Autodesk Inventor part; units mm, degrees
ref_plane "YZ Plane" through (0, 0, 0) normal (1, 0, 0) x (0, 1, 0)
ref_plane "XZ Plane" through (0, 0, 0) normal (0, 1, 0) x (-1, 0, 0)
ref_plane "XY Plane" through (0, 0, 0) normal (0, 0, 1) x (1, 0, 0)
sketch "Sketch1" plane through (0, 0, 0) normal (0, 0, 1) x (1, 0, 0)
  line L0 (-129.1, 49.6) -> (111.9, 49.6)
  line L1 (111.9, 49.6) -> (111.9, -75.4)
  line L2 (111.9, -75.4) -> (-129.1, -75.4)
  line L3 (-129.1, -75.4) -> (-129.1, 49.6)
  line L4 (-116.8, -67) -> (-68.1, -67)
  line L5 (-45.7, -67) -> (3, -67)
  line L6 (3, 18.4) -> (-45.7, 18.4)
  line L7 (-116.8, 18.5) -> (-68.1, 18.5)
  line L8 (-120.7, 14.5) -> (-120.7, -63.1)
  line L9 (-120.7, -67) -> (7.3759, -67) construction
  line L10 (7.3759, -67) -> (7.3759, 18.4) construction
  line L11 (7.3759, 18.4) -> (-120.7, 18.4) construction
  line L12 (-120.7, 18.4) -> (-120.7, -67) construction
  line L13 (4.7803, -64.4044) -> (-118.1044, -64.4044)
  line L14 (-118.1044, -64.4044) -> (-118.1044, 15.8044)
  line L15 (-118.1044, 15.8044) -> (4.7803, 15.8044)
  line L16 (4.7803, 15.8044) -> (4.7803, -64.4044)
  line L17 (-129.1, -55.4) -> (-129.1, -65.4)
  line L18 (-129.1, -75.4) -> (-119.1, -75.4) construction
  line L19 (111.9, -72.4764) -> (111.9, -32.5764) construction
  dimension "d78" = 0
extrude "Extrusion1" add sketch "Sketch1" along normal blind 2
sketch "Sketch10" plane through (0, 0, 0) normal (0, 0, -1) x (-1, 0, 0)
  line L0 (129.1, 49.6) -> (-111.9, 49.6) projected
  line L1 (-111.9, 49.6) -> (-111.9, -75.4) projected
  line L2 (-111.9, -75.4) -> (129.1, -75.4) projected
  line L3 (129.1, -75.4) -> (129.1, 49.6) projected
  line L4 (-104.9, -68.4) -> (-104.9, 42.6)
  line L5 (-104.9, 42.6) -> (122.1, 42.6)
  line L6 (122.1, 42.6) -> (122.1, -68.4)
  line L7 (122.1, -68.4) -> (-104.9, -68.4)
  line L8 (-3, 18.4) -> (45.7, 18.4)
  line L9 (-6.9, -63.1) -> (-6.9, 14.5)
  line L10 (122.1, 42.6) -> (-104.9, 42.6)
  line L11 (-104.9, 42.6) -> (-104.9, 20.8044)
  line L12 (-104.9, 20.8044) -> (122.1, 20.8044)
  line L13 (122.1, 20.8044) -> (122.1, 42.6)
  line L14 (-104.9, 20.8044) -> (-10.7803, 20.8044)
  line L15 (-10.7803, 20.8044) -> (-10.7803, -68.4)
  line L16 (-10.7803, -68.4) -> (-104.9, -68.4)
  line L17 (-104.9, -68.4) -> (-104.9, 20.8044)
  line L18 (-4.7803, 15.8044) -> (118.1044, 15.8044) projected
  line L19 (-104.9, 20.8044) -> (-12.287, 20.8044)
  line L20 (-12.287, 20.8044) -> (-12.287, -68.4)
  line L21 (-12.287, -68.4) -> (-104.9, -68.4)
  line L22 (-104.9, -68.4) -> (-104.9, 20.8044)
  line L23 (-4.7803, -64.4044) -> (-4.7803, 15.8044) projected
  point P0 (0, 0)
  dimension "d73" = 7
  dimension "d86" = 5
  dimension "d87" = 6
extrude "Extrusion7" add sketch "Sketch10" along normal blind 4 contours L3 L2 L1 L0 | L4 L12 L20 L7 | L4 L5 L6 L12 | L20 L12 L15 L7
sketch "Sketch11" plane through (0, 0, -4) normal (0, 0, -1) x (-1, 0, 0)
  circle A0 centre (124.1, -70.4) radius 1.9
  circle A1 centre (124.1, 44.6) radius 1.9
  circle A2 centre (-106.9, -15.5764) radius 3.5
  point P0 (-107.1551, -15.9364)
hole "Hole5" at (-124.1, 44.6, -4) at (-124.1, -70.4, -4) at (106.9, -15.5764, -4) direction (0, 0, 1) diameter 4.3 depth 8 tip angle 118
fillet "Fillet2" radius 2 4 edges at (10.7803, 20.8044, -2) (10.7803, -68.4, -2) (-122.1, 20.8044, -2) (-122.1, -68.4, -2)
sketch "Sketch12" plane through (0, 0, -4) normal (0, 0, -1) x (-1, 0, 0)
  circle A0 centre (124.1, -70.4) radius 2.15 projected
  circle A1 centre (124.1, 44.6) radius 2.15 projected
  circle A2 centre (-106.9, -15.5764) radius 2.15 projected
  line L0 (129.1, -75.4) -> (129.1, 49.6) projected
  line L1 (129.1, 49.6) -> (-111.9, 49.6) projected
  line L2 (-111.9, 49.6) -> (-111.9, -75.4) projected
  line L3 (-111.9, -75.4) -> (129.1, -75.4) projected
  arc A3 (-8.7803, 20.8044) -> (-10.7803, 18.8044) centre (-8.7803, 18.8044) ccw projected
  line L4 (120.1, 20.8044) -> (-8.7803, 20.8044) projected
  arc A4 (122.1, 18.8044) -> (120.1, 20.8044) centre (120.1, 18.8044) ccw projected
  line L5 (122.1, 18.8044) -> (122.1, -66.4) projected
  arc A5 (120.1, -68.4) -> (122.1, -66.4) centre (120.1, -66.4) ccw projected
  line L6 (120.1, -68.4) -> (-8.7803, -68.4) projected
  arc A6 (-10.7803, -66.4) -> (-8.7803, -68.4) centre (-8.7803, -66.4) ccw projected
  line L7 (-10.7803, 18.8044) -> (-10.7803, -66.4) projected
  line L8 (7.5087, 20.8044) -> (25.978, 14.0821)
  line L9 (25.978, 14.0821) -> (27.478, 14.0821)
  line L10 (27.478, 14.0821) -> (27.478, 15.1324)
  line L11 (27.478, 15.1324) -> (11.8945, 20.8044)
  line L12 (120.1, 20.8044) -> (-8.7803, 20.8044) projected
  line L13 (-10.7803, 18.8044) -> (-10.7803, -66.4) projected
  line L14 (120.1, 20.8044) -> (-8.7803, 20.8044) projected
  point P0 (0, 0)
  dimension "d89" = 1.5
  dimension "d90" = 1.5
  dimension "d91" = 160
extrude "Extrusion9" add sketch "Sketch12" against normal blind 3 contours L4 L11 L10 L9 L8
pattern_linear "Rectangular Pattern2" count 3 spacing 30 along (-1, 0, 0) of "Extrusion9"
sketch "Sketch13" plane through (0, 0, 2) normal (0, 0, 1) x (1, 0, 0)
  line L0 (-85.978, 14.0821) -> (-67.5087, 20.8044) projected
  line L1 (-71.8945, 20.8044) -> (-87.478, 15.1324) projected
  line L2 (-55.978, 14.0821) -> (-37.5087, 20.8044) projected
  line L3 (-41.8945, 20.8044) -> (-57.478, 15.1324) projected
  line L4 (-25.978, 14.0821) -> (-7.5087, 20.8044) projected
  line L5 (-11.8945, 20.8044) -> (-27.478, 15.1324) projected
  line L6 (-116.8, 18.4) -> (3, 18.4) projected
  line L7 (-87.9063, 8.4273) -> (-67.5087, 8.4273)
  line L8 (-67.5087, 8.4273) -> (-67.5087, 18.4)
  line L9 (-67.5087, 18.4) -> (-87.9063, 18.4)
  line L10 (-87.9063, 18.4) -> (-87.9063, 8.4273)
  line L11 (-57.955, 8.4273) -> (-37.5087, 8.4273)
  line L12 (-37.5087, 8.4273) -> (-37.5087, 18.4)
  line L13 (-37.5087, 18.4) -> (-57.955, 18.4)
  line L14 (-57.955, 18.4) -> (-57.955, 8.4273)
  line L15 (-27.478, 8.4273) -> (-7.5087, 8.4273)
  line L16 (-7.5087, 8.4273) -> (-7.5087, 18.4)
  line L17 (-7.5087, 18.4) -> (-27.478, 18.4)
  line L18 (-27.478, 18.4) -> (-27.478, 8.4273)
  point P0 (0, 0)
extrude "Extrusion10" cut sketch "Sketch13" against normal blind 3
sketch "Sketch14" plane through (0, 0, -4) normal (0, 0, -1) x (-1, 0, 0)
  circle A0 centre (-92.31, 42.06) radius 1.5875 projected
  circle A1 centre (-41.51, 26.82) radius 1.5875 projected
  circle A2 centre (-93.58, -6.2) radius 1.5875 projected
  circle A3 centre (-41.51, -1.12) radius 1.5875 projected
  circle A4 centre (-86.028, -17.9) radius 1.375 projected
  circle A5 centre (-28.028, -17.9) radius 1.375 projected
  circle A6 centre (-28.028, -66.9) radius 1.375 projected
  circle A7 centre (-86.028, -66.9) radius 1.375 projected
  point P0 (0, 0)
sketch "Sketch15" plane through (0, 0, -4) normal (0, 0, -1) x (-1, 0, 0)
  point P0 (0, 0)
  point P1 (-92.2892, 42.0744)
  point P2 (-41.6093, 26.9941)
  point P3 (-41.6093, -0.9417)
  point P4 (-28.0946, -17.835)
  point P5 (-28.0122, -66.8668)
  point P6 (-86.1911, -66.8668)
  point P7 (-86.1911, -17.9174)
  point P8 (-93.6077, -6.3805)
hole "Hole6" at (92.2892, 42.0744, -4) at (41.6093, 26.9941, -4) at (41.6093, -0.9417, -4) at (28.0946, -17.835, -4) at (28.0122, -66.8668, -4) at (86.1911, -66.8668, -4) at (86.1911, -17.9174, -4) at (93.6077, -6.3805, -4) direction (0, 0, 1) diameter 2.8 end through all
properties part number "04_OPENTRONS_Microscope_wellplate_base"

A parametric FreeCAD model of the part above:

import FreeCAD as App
import Part
import Sketcher
from FreeCAD import Vector
Q = App.Units.Quantity


def edges_at(feature, points):
    """Names of the edges that pass closest to the given points."""
    edges = feature.Shape.Edges
    near = lambda p: min(range(len(edges)), key=lambda i: edges[i].distToShape(Part.Vertex(*p))[0])
    return sorted({f"Edge{near(p) + 1}" for p in points})

doc = App.newDocument("Part")
body = doc.addObject("PartDesign::Body", "Body")

# Sketch on XY plane
sketch1 = body.newObject("Sketcher::SketchObject", "Sketch")
sketch1.AttachmentSupport = (doc.getObject("XY_Plane"), [""])
sketch1.MapMode = "FlatFace"
sketch1.addGeometry(Part.LineSegment(Vector(112, 50, 0), Vector(-129, 50, 0)), False)
sketch1.addGeometry(Part.LineSegment(Vector(-129, 50, 0), Vector(-129, -75, 0)), False)
sketch1.addGeometry(Part.LineSegment(Vector(-129, -75, 0), Vector(112, -75, 0)), False)
sketch1.addGeometry(Part.LineSegment(Vector(112, -75, 0), Vector(112, 50, 0)), False)
sketch1.addGeometry(Part.LineSegment(Vector(5, 16, 0), Vector(5, -64, 0)), False)
sketch1.addGeometry(Part.LineSegment(Vector(5, -64, 0), Vector(-118, -64, 0)), False)
sketch1.addGeometry(Part.LineSegment(Vector(-118, -64, 0), Vector(-118, 16, 0)), False)
sketch1.addGeometry(Part.LineSegment(Vector(-118, 16, 0), Vector(5, 16, 0)), False)
sketch1.addConstraint(Sketcher.Constraint("Coincident", 0, 2, 1, 1))
sketch1.addConstraint(Sketcher.Constraint("Coincident", 1, 2, 2, 1))
sketch1.addConstraint(Sketcher.Constraint("Coincident", 2, 2, 3, 1))
sketch1.addConstraint(Sketcher.Constraint("Coincident", 3, 2, 0, 1))
sketch1.addConstraint(Sketcher.Constraint("Coincident", 4, 2, 5, 1))
sketch1.addConstraint(Sketcher.Constraint("Coincident", 5, 2, 6, 1))
sketch1.addConstraint(Sketcher.Constraint("Coincident", 6, 2, 7, 1))
sketch1.addConstraint(Sketcher.Constraint("Coincident", 7, 2, 4, 1))
sketch1.addConstraint(Sketcher.Constraint("Horizontal", 0))
sketch1.addConstraint(Sketcher.Constraint("Vertical", 1))
sketch1.addConstraint(Sketcher.Constraint("Horizontal", 2))
sketch1.addConstraint(Sketcher.Constraint("Vertical", 3))
sketch1.addConstraint(Sketcher.Constraint("Vertical", 4))
sketch1.addConstraint(Sketcher.Constraint("Horizontal", 5))
sketch1.addConstraint(Sketcher.Constraint("Vertical", 6))
sketch1.addConstraint(Sketcher.Constraint("Horizontal", 7))
sketch1.addConstraint(Sketcher.Constraint("DistanceX", 0, 2, 0, 1, 241.0))
sketch1.addConstraint(Sketcher.Constraint("DistanceY", 1, 2, 1, 1, 125.0))
sketch1.addConstraint(Sketcher.Constraint("DistanceX", 0, 2, -1, 1, 129.1))
sketch1.addConstraint(Sketcher.Constraint("DistanceY", -1, 1, 0, 2, 49.6))
sketch1.addConstraint(Sketcher.Constraint("DistanceX", 5, 2, 5, 1, 122.8847))
sketch1.addConstraint(Sketcher.Constraint("DistanceY", 4, 2, 4, 1, 80.2088))
sketch1.addConstraint(Sketcher.Constraint("DistanceX", -1, 1, 4, 2, 4.7803))
sketch1.addConstraint(Sketcher.Constraint("DistanceY", 4, 2, -1, 1, 64.4044))
pad1 = body.newObject("PartDesign::Pad", "Pad")
pad1.Profile = sketch1
pad1.Length = 2

# Sketch on XY plane
sketch2 = body.newObject("Sketcher::SketchObject", "Sketch001")
sketch2.AttachmentSupport = (doc.getObject("XY_Plane"), [""])
sketch2.MapMode = "FlatFace"
sketch2.addGeometry(Part.LineSegment(Vector(-129, -75, 0), Vector(-129, 50, 0)), False)
sketch2.addGeometry(Part.LineSegment(Vector(-129, 50, 0), Vector(112, 50, 0)), False)
sketch2.addGeometry(Part.LineSegment(Vector(112, 50, 0), Vector(112, -75, 0)), False)
sketch2.addGeometry(Part.LineSegment(Vector(112, -75, 0), Vector(-129, -75, 0)), False)
sketch2.addGeometry(Part.LineSegment(Vector(-122, -68, 0), Vector(11, -68, 0)), False)
sketch2.addGeometry(Part.LineSegment(Vector(11, -68, 0), Vector(11, 21, 0)), False)
sketch2.addGeometry(Part.LineSegment(Vector(11, 21, 0), Vector(-122, 21, 0)), False)
sketch2.addGeometry(Part.LineSegment(Vector(-122, 21, 0), Vector(-122, -68, 0)), False)
sketch2.addConstraint(Sketcher.Constraint("Coincident", 0, 2, 1, 1))
sketch2.addConstraint(Sketcher.Constraint("Coincident", 1, 2, 2, 1))
sketch2.addConstraint(Sketcher.Constraint("Coincident", 2, 2, 3, 1))
sketch2.addConstraint(Sketcher.Constraint("Coincident", 3, 2, 0, 1))
sketch2.addConstraint(Sketcher.Constraint("Coincident", 4, 2, 5, 1))
sketch2.addConstraint(Sketcher.Constraint("Coincident", 5, 2, 6, 1))
sketch2.addConstraint(Sketcher.Constraint("Coincident", 6, 2, 7, 1))
sketch2.addConstraint(Sketcher.Constraint("Coincident", 7, 2, 4, 1))
sketch2.addConstraint(Sketcher.Constraint("Vertical", 0))
sketch2.addConstraint(Sketcher.Constraint("Horizontal", 1))
sketch2.addConstraint(Sketcher.Constraint("Vertical", 2))
sketch2.addConstraint(Sketcher.Constraint("Horizontal", 3))
sketch2.addConstraint(Sketcher.Constraint("Horizontal", 4))
sketch2.addConstraint(Sketcher.Constraint("Vertical", 5))
sketch2.addConstraint(Sketcher.Constraint("Horizontal", 6))
sketch2.addConstraint(Sketcher.Constraint("Vertical", 7))
sketch2.addConstraint(Sketcher.Constraint("DistanceY", 2, 2, 4, 2, 7.0))
sketch2.addConstraint(Sketcher.Constraint("DistanceX", 0, 2, 6, 2, 7.0))
sketch2.addConstraint(Sketcher.Constraint("DistanceX", 1, 1, 1, 2, 241.0))
sketch2.addConstraint(Sketcher.Constraint("DistanceY", 0, 1, 0, 2, 125.0))
sketch2.addConstraint(Sketcher.Constraint("DistanceX", 0, 2, -1, 1, 129.1))
sketch2.addConstraint(Sketcher.Constraint("DistanceY", -1, 1, 0, 2, 49.6))
sketch2.addConstraint(Sketcher.Constraint("DistanceX", 4, 1, 4, 2, 132.8803))
sketch2.addConstraint(Sketcher.Constraint("DistanceY", 5, 1, 5, 2, 89.2044))
pad2 = body.newObject("PartDesign::Pad", "Pad001")
pad2.Profile = sketch2
pad2.Length = 4
pad2.Reversed = True

# Sketch on XY plane
sketch3 = body.newObject("Sketcher::SketchObject", "Sketch002")
sketch3.AttachmentSupport = (doc.getObject("XY_Plane"), [""])
sketch3.MapMode = "FlatFace"
sketch3.AttachmentOffset = App.Placement(Vector(0, 0, -4), App.Rotation())
sketch3.addGeometry(Part.Circle(Vector(-124.1, 44.6, 0), Vector(0, 0, 1), 2.1), False)
sketch3.addGeometry(Part.Circle(Vector(-124.1, -70.4, 0), Vector(0, 0, 1), 2.1), False)
sketch3.addGeometry(Part.Circle(Vector(106.9, -15.6, 0), Vector(0, 0, 1), 2.1), False)
sketch3.addConstraint(Sketcher.Constraint("Equal", 0, 1))
sketch3.addConstraint(Sketcher.Constraint("Equal", 1, 2))
sketch3.addConstraint(Sketcher.Constraint("Vertical", 0, 3, 1, 3))
sketch3.addConstraint(Sketcher.Constraint("Diameter", 0, 4.3))
sketch3.addConstraint(Sketcher.Constraint("DistanceY", 1, 3, 0, 3, 115.0))
sketch3.addConstraint(Sketcher.Constraint("DistanceX", 1, 3, 2, 3, 231.0))
sketch3.addConstraint(Sketcher.Constraint("DistanceX", 0, 3, -1, 1, 124.1))
sketch3.addConstraint(Sketcher.Constraint("DistanceY", -1, 1, 0, 3, 44.6))
sketch3.addConstraint(Sketcher.Constraint("DistanceY", 2, 3, -1, 1, 15.5764))
doc.recompute()
hole = body.newObject("PartDesign::Hole", "Hole")
hole.Profile = sketch3
hole.ThreadType = "None"
hole.Diameter = 4.3
hole.DepthType = "Dimension"
hole.Depth = 8
hole.DrillPoint = "Angled"
hole.DrillPointAngle = 118
hole.Reversed = True
doc.recompute()

fillet = body.newObject("PartDesign::Fillet", "Fillet")
fillet.Base = (hole, edges_at(hole, [
    (10.78, 20.804, -2),
    (10.78, -68.4, -2),
    (-122.1, 20.804, -2),
    (-122.1, -68.4, -2),
]))
fillet.Radius = 2

# Sketch on XY plane
sketch4 = body.newObject("Sketcher::SketchObject", "Sketch003")
sketch4.AttachmentSupport = (doc.getObject("XY_Plane"), [""])
sketch4.MapMode = "FlatFace"
sketch4.AttachmentOffset = App.Placement(Vector(0, 0, -4), App.Rotation())
sketch4.addGeometry(Part.LineSegment(Vector(-11.9, 20.8, 0), Vector(-7.5, 20.8, 0)), False)
sketch4.addGeometry(Part.LineSegment(Vector(-7.5, 20.8, 0), Vector(-26, 14.1, 0)), False)
sketch4.addGeometry(Part.LineSegment(Vector(-26, 14.1, 0), Vector(-27.5, 14.1, 0)), False)
sketch4.addGeometry(Part.LineSegment(Vector(-27.5, 14.1, 0), Vector(-27.5, 15.1, 0)), False)
sketch4.addGeometry(Part.LineSegment(Vector(-27.5, 15.1, 0), Vector(-11.9, 20.8, 0)), False)
sketch4.addConstraint(Sketcher.Constraint("Coincident", 0, 2, 1, 1))
sketch4.addConstraint(Sketcher.Constraint("Coincident", 1, 2, 2, 1))
sketch4.addConstraint(Sketcher.Constraint("Coincident", 2, 2, 3, 1))
sketch4.addConstraint(Sketcher.Constraint("Coincident", 3, 2, 4, 1))
sketch4.addConstraint(Sketcher.Constraint("Coincident", 4, 2, 0, 1))
sketch4.addConstraint(Sketcher.Constraint("Horizontal", 0))
sketch4.addConstraint(Sketcher.Constraint("Horizontal", 2))
sketch4.addConstraint(Sketcher.Constraint("Vertical", 3))
sketch4.addConstraint(Sketcher.Constraint("Parallel", 1, 4))
sketch4.addConstraint(Sketcher.Constraint("Angle", 1, Q("-160 deg")))
sketch4.addConstraint(Sketcher.Constraint("DistanceX", 2, 2, 2, 1, 1.5))
sketch4.addConstraint(Sketcher.Constraint("DistanceX", 0, 1, 0, 2, 4.3858))
sketch4.addConstraint(Sketcher.Constraint("DistanceX", 1, 2, -1, 1, 25.978))
sketch4.addConstraint(Sketcher.Constraint("DistanceY", -1, 1, 1, 2, 14.082))
sketch4.addConstraint(Sketcher.Constraint("DistanceY", 3, 2, 0, 2, 5.672))
pad3 = body.newObject("PartDesign::Pad", "Pad002")
pad3.Profile = sketch4
pad3.Length = 3
doc.recompute()

linearpattern = body.newObject("PartDesign::LinearPattern", "LinearPattern")
linearpattern.Originals = [pad3]
linearpattern.Direction = (doc.getObject("X_Axis"), [""])
linearpattern.Mode = "offset"
linearpattern.Offset = 30
linearpattern.Occurrences = 3
linearpattern.Reversed = True
body.Tip = linearpattern

# Sketch on XY plane
sketch5 = body.newObject("Sketcher::SketchObject", "Sketch004")
sketch5.AttachmentSupport = (doc.getObject("XY_Plane"), [""])
sketch5.MapMode = "FlatFace"
sketch5.AttachmentOffset = App.Placement(Vector(0, 0, 2), App.Rotation())
sketch5.addGeometry(Part.LineSegment(Vector(-27, 18, 0), Vector(-27, 8, 0)), False)
sketch5.addGeometry(Part.LineSegment(Vector(-27, 8, 0), Vector(-8, 8, 0)), False)
sketch5.addGeometry(Part.LineSegment(Vector(-8, 8, 0), Vector(-8, 18, 0)), False)
sketch5.addGeometry(Part.LineSegment(Vector(-8, 18, 0), Vector(-27, 18, 0)), False)
sketch5.addGeometry(Part.LineSegment(Vector(-68, 8, 0), Vector(-68, 18, 0)), False)
sketch5.addGeometry(Part.LineSegment(Vector(-68, 18, 0), Vector(-88, 18, 0)), False)
sketch5.addGeometry(Part.LineSegment(Vector(-88, 18, 0), Vector(-88, 8, 0)), False)
sketch5.addGeometry(Part.LineSegment(Vector(-88, 8, 0), Vector(-68, 8, 0)), False)
sketch5.addGeometry(Part.LineSegment(Vector(-38, 8, 0), Vector(-38, 18, 0)), False)
sketch5.addGeometry(Part.LineSegment(Vector(-38, 18, 0), Vector(-58, 18, 0)), False)
sketch5.addGeometry(Part.LineSegment(Vector(-58, 18, 0), Vector(-58, 8, 0)), False)
sketch5.addGeometry(Part.LineSegment(Vector(-58, 8, 0), Vector(-38, 8, 0)), False)
sketch5.addConstraint(Sketcher.Constraint("Coincident", 0, 2, 1, 1))
sketch5.addConstraint(Sketcher.Constraint("Coincident", 1, 2, 2, 1))
sketch5.addConstraint(Sketcher.Constraint("Coincident", 2, 2, 3, 1))
sketch5.addConstraint(Sketcher.Constraint("Coincident", 3, 2, 0, 1))
sketch5.addConstraint(Sketcher.Constraint("Coincident", 4, 2, 5, 1))
sketch5.addConstraint(Sketcher.Constraint("Coincident", 5, 2, 6, 1))
sketch5.addConstraint(Sketcher.Constraint("Coincident", 6, 2, 7, 1))
sketch5.addConstraint(Sketcher.Constraint("Coincident", 7, 2, 4, 1))
sketch5.addConstraint(Sketcher.Constraint("Coincident", 8, 2, 9, 1))
sketch5.addConstraint(Sketcher.Constraint("Coincident", 9, 2, 10, 1))
sketch5.addConstraint(Sketcher.Constraint("Coincident", 10, 2, 11, 1))
sketch5.addConstraint(Sketcher.Constraint("Coincident", 11, 2, 8, 1))
sketch5.addConstraint(Sketcher.Constraint("Vertical", 0))
sketch5.addConstraint(Sketcher.Constraint("Horizontal", 1))
sketch5.addConstraint(Sketcher.Constraint("Vertical", 2))
sketch5.addConstraint(Sketcher.Constraint("Horizontal", 3))
sketch5.addConstraint(Sketcher.Constraint("Vertical", 4))
sketch5.addConstraint(Sketcher.Constraint("Horizontal", 5))
sketch5.addConstraint(Sketcher.Constraint("Vertical", 6))
sketch5.addConstraint(Sketcher.Constraint("Horizontal", 7))
sketch5.addConstraint(Sketcher.Constraint("Vertical", 8))
sketch5.addConstraint(Sketcher.Constraint("Horizontal", 9))
sketch5.addConstraint(Sketcher.Constraint("Vertical", 10))
sketch5.addConstraint(Sketcher.Constraint("Horizontal", 11))
sketch5.addConstraint(Sketcher.Constraint("Horizontal", 3, 2, 4, 2))
sketch5.addConstraint(Sketcher.Constraint("Horizontal", 1, 2, 6, 2))
sketch5.addConstraint(Sketcher.Constraint("Horizontal", 5, 2, 8, 2))
sketch5.addConstraint(Sketcher.Constraint("Horizontal", 7, 2, 10, 2))
sketch5.addConstraint(Sketcher.Constraint("DistanceX", 4, 2, 2, 2, 60.0))
sketch5.addConstraint(Sketcher.Constraint("DistanceX", 8, 2, 2, 2, 30.0))
sketch5.addConstraint(Sketcher.Constraint("DistanceY", -1, 1, 2, 2, 18.4))
sketch5.addConstraint(Sketcher.Constraint("DistanceX", 1, 1, 1, 2, 19.9693))
sketch5.addConstraint(Sketcher.Constraint("DistanceX", 5, 2, 5, 1, 20.3976))
sketch5.addConstraint(Sketcher.Constraint("DistanceX", 9, 2, 9, 1, 20.4463))
sketch5.addConstraint(Sketcher.Constraint("DistanceY", 0, 2, 0, 1, 9.9727))
sketch5.addConstraint(Sketcher.Constraint("DistanceX", 0, 2, -1, 1, 27.478))
pocket1 = body.newObject("PartDesign::Pocket", "Pocket")
pocket1.Profile = sketch5
pocket1.Length = 3

# Sketch on XY plane
sketch6 = body.newObject("Sketcher::SketchObject", "Sketch005")
sketch6.AttachmentSupport = (doc.getObject("XY_Plane"), [""])
sketch6.MapMode = "FlatFace"
sketch6.AttachmentOffset = App.Placement(Vector(0, 0, -4), App.Rotation())
sketch6.addGeometry(Part.Circle(Vector(92.3, 42.1, 0), Vector(0, 0, 1), 1.4), False)
sketch6.addGeometry(Part.Circle(Vector(41.6, 27, 0), Vector(0, 0, 1), 1.4), False)
sketch6.addGeometry(Part.Circle(Vector(41.6, -0.9, 0), Vector(0, 0, 1), 1.4), False)
sketch6.addGeometry(Part.Circle(Vector(28.1, -17.8, 0), Vector(0, 0, 1), 1.4), False)
sketch6.addGeometry(Part.Circle(Vector(28, -66.9, 0), Vector(0, 0, 1), 1.4), False)
sketch6.addGeometry(Part.Circle(Vector(86.2, -66.9, 0), Vector(0, 0, 1), 1.4), False)
sketch6.addGeometry(Part.Circle(Vector(86.2, -17.9, 0), Vector(0, 0, 1), 1.4), False)
sketch6.addGeometry(Part.Circle(Vector(93.6, -6.4, 0), Vector(0, 0, 1), 1.4), False)
sketch6.addConstraint(Sketcher.Constraint("Equal", 0, 1))
sketch6.addConstraint(Sketcher.Constraint("Equal", 1, 2))
sketch6.addConstraint(Sketcher.Constraint("Equal", 2, 3))
sketch6.addConstraint(Sketcher.Constraint("Equal", 3, 4))
sketch6.addConstraint(Sketcher.Constraint("Equal", 4, 5))
sketch6.addConstraint(Sketcher.Constraint("Equal", 5, 6))
sketch6.addConstraint(Sketcher.Constraint("Equal", 6, 7))
sketch6.addConstraint(Sketcher.Constraint("Horizontal", 4, 3, 5, 3))
sketch6.addConstraint(Sketcher.Constraint("Vertical", 1, 3, 2, 3))
sketch6.addConstraint(Sketcher.Constraint("Vertical", 5, 3, 6, 3))
sketch6.addConstraint(Sketcher.Constraint("Diameter", 0, 2.8))
sketch6.addConstraint(Sketcher.Constraint("DistanceX", 1, 3, 0, 3, 50.68))
sketch6.addConstraint(Sketcher.Constraint("DistanceY", -1, 1, 1, 3, 26.994))
sketch6.addConstraint(Sketcher.Constraint("DistanceY", 3, 3, -1, 1, 17.835))
sketch6.addConstraint(Sketcher.Constraint("DistanceX", -1, 1, 5, 3, 86.191))
sketch6.addConstraint(Sketcher.Constraint("DistanceY", 2, 3, 0, 3, 43.016))
sketch6.addConstraint(Sketcher.Constraint("DistanceX", 4, 3, 2, 3, 13.597))
sketch6.addConstraint(Sketcher.Constraint("DistanceY", 4, 3, 2, 3, 65.925))
sketch6.addConstraint(Sketcher.Constraint("DistanceY", 4, 3, 1, 3, 93.861))
sketch6.addConstraint(Sketcher.Constraint("DistanceX", 4, 3, 5, 3, 58.179))
sketch6.addConstraint(Sketcher.Constraint("DistanceY", 6, 3, 7, 3, 11.537))
sketch6.addConstraint(Sketcher.Constraint("DistanceY", 7, 3, 0, 3, 48.455))
sketch6.addConstraint(Sketcher.Constraint("DistanceX", -1, 1, 3, 3, 28.0946))
sketch6.addConstraint(Sketcher.Constraint("DistanceX", -1, 1, 7, 3, 93.6077))
doc.recompute()
hole2 = body.newObject("PartDesign::Hole", "Hole001")
hole2.Profile = sketch6
hole2.ThreadType = "None"
hole2.Diameter = 2.8
hole2.DepthType = "ThroughAll"
hole2.Reversed = True

doc.recompute()
